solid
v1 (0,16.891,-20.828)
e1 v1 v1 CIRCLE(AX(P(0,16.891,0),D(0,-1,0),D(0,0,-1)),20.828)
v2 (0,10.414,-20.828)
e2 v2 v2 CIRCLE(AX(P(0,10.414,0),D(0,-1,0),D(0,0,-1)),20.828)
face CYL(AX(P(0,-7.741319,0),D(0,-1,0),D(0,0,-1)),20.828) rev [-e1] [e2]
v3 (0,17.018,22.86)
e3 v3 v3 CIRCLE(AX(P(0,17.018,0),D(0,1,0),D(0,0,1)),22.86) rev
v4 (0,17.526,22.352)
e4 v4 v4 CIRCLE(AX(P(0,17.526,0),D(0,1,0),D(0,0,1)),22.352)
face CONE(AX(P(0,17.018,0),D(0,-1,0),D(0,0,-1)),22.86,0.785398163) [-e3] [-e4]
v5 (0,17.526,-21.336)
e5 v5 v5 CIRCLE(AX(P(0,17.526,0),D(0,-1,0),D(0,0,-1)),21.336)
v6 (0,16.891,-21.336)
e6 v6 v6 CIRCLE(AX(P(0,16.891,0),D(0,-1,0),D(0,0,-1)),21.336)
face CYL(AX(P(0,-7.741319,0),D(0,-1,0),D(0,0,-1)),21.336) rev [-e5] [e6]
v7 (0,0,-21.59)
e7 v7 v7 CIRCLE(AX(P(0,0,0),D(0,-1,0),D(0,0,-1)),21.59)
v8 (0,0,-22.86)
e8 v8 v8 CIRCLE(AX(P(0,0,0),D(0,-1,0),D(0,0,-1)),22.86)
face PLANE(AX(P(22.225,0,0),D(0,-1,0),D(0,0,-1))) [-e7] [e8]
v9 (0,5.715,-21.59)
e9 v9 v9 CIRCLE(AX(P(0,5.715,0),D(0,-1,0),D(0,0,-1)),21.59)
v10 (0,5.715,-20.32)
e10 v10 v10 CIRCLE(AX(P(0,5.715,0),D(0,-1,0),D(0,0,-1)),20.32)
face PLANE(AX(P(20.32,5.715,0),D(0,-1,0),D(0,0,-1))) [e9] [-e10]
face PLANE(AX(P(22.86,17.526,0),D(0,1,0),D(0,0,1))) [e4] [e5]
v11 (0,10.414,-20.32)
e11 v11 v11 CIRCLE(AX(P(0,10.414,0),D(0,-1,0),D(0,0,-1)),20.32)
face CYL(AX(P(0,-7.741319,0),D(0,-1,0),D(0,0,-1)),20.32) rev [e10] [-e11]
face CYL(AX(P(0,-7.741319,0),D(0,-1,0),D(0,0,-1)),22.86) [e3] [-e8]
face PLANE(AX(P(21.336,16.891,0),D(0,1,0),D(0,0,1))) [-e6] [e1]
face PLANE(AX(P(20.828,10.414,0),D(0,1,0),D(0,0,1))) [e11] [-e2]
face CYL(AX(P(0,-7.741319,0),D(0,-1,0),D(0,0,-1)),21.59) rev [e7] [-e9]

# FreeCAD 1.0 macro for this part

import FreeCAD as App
import Part
import Sketcher
from FreeCAD import Vector
Q = App.Units.Quantity


def edges_at(feature, points):
    """Names of the edges that pass closest to the given points."""
    edges = feature.Shape.Edges
    near = lambda p: min(range(len(edges)), key=lambda i: edges[i].distToShape(Part.Vertex(*p))[0])
    return sorted({f"Edge{near(p) + 1}" for p in points})

doc = App.newDocument("Part")
body = doc.addObject("PartDesign::Body", "Body")

sketch1 = doc.addObject("Sketcher::SketchObject", "Sketch")
body.addObject(sketch1)
sketch1.AttachmentSupport = (doc.XY_Plane, [""])
sketch1.MapMode = "FlatFace"
sketch1.addGeometry(Part.LineSegment(Vector(21.336, 17.526, 0), Vector(21.336, 16.891, 0)), False)
sketch1.addGeometry(Part.LineSegment(Vector(21.336, 16.891, 0), Vector(20.828, 16.891, 0)), False)
sketch1.addGeometry(Part.LineSegment(Vector(20.828, 16.891, 0), Vector(20.828, 10.414, 0)), False)
sketch1.addGeometry(Part.LineSegment(Vector(20.828, 10.414, 0), Vector(20.32, 10.414, 0)), False)
sketch1.addGeometry(Part.LineSegment(Vector(20.32, 10.414, 0), Vector(20.32, 5.715, 0)), False)
sketch1.addGeometry(Part.LineSegment(Vector(20.32, 5.715, 0), Vector(21.59, 5.715, 0)), False)
sketch1.addGeometry(Part.LineSegment(Vector(21.59, 5.715, 0), Vector(21.59, 2.413, 0)), False)
sketch1.addGeometry(Part.LineSegment(Vector(21.59, 2.413, 0), Vector(22.225, 2.413, 0)), False)
sketch1.addGeometry(Part.LineSegment(Vector(22.225, 2.413, 0), Vector(22.225, 0, 0)), False)
sketch1.addGeometry(Part.LineSegment(Vector(22.225, 0, 0), Vector(22.86, 0, 0)), False)
sketch1.addGeometry(Part.LineSegment(Vector(22.86, 0, 0), Vector(22.86, 17.526, 0)), False)
sketch1.addGeometry(Part.LineSegment(Vector(22.86, 17.526, 0), Vector(21.336, 17.526, 0)), False)
sketch1.addConstraint(Sketcher.Constraint("Coincident", 0, 2, 1, 1))
sketch1.addConstraint(Sketcher.Constraint("Coincident", 1, 2, 2, 1))
sketch1.addConstraint(Sketcher.Constraint("Coincident", 2, 2, 3, 1))
sketch1.addConstraint(Sketcher.Constraint("Coincident", 3, 2, 4, 1))
sketch1.addConstraint(Sketcher.Constraint("Coincident", 4, 2, 5, 1))
sketch1.addConstraint(Sketcher.Constraint("Coincident", 5, 2, 6, 1))
sketch1.addConstraint(Sketcher.Constraint("Coincident", 6, 2, 7, 1))
sketch1.addConstraint(Sketcher.Constraint("Coincident", 7, 2, 8, 1))
sketch1.addConstraint(Sketcher.Constraint("Coincident", 8, 2, 9, 1))
sketch1.addConstraint(Sketcher.Constraint("Coincident", 9, 2, 10, 1))
sketch1.addConstraint(Sketcher.Constraint("Coincident", 10, 2, 11, 1))
sketch1.addConstraint(Sketcher.Constraint("Coincident", 11, 2, 0, 1))
sketch1.addConstraint(Sketcher.Constraint("Vertical", 0))
sketch1.addConstraint(Sketcher.Constraint("Horizontal", 1))
sketch1.addConstraint(Sketcher.Constraint("Vertical", 2))
sketch1.addConstraint(Sketcher.Constraint("Horizontal", 3))
sketch1.addConstraint(Sketcher.Constraint("Vertical", 4))
sketch1.addConstraint(Sketcher.Constraint("Horizontal", 5))
sketch1.addConstraint(Sketcher.Constraint("Vertical", 6))
sketch1.addConstraint(Sketcher.Constraint("Horizontal", 7))
sketch1.addConstraint(Sketcher.Constraint("Vertical", 8))
sketch1.addConstraint(Sketcher.Constraint("Horizontal", 9))
sketch1.addConstraint(Sketcher.Constraint("Vertical", 10))
sketch1.addConstraint(Sketcher.Constraint("Horizontal", 11))
sketch1.addConstraint(Sketcher.Constraint("PointOnObject", 8, 2, -1))
sketch1.addConstraint(Sketcher.Constraint("Equal", 1, 3))
sketch1.addConstraint(Sketcher.Constraint("Equal", 7, 9))
sketch1.addConstraint(Sketcher.Constraint("Equal", 9, 0))
sketch1.addConstraint(Sketcher.Constraint("DistanceX", 1, 2, 1, 1, Q("0.02 in")))
sketch1.addConstraint(Sketcher.Constraint("DistanceX", 5, 1, 5, 2, Q("0.05 in")))
sketch1.addConstraint(Sketcher.Constraint("DistanceX", 11, 2, 11, 1, Q("0.06 in")))
sketch1.addConstraint(Sketcher.Constraint("DistanceY", 6, 2, 6, 1, Q("0.13 in")))
sketch1.addConstraint(Sketcher.Constraint("DistanceY", 10, 1, 10, 2, Q("0.69 in")))
sketch1.addConstraint(Sketcher.Constraint("DistanceX", -1, 1, 3, 2, Q("0.8 in")))
sketch1.addConstraint(Sketcher.Constraint("DistanceY", 2, 2, 2, 1, Q("0.255 in")))
sketch1.addConstraint(Sketcher.Constraint("DistanceY", 4, 2, 4, 1, Q("0.185 in")))
revolution = doc.addObject("PartDesign::Revolution", "Revolution")
body.addObject(revolution)
revolution.Profile = sketch1
revolution.ReferenceAxis = (sketch1, ["V_Axis"])
revolution.Angle = 360
doc.recompute()

chamfer = doc.addObject("PartDesign::Chamfer", "Chamfer")
body.addObject(chamfer)
chamfer.Base = (revolution, edges_at(revolution, [(0, 17.526, 22.86)]))
chamfer.Size = Q("0.02 in")
doc.recompute()

chamfer2 = doc.addObject("PartDesign::Chamfer", "Chamfer001")
body.addObject(chamfer2)
chamfer2.Base = (chamfer, edges_at(chamfer, [(0, 0, 22.225)]))
chamfer2.Size = Q("0.01 in")

sketch2 = doc.addObject("Sketcher::SketchObject", "Sketch001")
body.addObject(sketch2)
sketch2.AttachmentSupport = (doc.XZ_Plane, [""])
sketch2.MapMode = "FlatFace"
sketch2.addGeometry(Part.Circle(Vector(0, 0, 0), Vector(0, 0, 1), 22.86), False)
sketch2.addGeometry(Part.Circle(Vector(0, 0, 0), Vector(0, 0, 1), 21.59), False)
sketch2.addConstraint(Sketcher.Constraint("Coincident", 0, 3, -1, 1))
sketch2.addConstraint(Sketcher.Constraint("Coincident", 1, 3, -1, 1))
sketch2.addConstraint(Sketcher.Constraint("Diameter", 0, Q("1.8 in")))
sketch2.addConstraint(Sketcher.Constraint("Diameter", 1, Q("1.7 in")))
pad1 = doc.addObject("PartDesign::Pad", "Pad")
body.addObject(pad1)
pad1.Profile = sketch2
pad1.Length = Q("0.095 in")
pad1.Reversed = True

doc.recompute()
